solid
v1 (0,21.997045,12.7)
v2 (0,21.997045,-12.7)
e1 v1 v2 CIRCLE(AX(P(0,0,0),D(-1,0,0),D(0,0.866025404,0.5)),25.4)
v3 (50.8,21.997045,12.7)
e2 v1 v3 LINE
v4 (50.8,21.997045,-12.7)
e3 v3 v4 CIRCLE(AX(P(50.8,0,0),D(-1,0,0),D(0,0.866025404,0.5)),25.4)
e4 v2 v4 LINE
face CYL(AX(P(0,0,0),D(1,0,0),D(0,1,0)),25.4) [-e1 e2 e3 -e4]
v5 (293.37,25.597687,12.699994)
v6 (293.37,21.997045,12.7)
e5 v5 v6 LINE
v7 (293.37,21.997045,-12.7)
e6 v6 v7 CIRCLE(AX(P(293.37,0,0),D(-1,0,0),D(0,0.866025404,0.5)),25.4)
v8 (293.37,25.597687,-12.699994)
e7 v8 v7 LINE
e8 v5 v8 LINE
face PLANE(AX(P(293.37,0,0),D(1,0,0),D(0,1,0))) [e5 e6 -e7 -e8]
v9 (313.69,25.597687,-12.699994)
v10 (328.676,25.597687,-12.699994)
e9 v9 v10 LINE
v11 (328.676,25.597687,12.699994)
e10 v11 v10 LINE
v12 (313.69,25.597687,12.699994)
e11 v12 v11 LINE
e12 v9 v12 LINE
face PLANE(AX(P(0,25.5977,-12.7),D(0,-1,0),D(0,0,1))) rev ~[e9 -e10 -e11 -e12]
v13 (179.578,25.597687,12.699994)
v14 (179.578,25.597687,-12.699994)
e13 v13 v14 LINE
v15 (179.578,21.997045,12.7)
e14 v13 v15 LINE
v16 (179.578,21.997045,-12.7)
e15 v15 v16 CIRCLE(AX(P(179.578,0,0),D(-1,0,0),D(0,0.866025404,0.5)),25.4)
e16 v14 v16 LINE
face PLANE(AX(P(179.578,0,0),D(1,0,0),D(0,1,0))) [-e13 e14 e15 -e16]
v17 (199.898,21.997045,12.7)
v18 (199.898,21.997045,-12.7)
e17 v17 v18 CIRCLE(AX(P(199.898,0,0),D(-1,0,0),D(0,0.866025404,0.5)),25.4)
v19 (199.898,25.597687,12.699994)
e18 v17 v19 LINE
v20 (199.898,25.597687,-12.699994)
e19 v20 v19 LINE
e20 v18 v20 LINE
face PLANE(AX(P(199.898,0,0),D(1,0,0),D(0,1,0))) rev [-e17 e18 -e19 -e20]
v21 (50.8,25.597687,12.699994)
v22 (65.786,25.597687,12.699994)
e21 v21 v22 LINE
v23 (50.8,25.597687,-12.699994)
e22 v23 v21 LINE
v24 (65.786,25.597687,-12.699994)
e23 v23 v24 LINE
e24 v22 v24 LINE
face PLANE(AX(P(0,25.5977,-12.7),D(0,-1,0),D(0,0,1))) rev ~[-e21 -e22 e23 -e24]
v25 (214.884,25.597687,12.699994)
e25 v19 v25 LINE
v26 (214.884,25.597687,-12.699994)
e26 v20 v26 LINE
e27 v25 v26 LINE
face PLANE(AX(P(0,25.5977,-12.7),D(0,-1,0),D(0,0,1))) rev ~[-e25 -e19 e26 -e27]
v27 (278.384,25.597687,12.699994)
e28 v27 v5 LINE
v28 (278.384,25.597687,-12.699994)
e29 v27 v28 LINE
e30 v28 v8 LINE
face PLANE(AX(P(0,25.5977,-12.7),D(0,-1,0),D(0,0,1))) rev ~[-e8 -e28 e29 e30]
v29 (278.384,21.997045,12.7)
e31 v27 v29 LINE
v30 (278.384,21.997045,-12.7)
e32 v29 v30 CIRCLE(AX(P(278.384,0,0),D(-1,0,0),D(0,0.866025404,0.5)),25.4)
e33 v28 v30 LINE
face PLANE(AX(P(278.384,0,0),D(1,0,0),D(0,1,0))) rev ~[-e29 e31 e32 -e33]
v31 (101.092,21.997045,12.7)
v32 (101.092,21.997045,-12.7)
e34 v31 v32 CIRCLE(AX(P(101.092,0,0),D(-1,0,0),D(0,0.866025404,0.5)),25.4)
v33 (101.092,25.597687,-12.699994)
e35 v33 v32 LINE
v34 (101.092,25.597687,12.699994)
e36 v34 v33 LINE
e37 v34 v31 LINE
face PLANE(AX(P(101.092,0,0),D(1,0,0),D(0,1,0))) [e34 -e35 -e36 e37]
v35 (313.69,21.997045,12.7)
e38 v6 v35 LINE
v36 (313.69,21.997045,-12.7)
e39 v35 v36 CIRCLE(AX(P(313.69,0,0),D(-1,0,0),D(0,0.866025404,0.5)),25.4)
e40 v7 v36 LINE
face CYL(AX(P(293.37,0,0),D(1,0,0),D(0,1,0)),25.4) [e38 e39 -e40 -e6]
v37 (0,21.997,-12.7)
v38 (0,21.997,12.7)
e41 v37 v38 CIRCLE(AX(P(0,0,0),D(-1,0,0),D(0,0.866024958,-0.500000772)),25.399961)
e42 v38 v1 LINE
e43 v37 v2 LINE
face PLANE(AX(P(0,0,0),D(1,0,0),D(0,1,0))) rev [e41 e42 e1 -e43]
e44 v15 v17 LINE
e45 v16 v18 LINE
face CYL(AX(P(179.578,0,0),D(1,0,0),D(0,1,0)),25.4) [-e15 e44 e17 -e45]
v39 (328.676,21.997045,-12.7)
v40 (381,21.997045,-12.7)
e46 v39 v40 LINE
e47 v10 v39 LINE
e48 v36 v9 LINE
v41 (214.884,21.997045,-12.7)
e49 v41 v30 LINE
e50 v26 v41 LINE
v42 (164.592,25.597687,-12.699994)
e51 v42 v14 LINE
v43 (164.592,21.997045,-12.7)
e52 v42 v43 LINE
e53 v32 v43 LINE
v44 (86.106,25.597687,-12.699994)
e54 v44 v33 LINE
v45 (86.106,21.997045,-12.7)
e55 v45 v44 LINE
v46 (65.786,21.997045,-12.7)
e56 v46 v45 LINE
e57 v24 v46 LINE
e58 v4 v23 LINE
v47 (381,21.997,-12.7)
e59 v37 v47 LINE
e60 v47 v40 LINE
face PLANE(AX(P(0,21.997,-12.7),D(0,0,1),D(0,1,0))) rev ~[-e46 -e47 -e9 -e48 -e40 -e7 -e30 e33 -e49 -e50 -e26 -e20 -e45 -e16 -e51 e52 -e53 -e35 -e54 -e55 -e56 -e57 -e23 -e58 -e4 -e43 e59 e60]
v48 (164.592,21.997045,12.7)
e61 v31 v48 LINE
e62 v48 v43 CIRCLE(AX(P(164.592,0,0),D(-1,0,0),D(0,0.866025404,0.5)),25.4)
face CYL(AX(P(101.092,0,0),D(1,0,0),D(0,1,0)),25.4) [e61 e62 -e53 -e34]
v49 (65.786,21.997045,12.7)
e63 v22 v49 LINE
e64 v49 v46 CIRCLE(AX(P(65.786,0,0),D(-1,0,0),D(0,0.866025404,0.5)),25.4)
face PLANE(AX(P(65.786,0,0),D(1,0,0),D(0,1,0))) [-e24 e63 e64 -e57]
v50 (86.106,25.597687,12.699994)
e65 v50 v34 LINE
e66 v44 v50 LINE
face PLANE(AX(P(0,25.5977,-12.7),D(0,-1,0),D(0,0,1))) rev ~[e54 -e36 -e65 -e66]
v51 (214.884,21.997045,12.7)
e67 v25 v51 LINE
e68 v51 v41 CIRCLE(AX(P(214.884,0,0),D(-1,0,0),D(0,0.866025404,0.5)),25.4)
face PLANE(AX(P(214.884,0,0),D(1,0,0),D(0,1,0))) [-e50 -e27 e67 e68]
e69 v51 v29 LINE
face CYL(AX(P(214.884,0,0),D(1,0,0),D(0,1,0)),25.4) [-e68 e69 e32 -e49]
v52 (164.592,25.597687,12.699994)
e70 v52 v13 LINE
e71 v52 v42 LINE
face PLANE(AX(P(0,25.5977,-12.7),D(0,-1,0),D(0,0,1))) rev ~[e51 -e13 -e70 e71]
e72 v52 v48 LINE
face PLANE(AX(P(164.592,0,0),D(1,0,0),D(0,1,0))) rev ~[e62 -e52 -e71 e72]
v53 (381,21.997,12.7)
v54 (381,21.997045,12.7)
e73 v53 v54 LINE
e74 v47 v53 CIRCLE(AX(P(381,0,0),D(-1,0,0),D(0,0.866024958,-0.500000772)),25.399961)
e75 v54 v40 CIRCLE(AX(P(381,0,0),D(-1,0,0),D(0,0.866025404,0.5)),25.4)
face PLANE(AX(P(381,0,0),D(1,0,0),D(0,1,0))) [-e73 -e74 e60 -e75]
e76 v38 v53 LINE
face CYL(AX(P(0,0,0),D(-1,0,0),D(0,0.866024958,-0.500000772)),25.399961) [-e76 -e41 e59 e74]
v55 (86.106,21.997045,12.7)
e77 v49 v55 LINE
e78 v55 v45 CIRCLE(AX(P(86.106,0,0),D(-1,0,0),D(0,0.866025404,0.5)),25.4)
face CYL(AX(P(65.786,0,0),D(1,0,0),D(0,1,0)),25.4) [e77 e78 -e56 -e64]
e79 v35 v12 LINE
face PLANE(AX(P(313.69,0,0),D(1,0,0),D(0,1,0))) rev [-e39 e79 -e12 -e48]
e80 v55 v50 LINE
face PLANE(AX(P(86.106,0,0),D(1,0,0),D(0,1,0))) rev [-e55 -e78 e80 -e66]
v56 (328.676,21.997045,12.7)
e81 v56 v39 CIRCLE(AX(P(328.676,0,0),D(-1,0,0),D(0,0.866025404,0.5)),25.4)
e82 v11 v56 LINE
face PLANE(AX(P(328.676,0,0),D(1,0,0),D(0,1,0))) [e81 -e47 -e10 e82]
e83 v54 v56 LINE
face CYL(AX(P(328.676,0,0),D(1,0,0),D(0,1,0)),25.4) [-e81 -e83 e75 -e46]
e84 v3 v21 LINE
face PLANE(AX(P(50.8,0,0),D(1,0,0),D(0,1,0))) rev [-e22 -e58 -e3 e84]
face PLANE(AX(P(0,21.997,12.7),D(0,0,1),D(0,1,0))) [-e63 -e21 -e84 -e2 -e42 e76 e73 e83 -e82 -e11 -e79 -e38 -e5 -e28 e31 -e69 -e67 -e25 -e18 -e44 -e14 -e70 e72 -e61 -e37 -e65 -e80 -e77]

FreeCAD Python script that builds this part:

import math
import FreeCAD as App
import Part
import Sketcher
from FreeCAD import Vector
Q = App.Units.Quantity

doc = App.newDocument("Part")
params = doc.addObject("Spreadsheet::Sheet", "Params")
for row, (alias, value) in enumerate([
    ("sketch1_width", "15 in"),
    ("sketch1_width2", "2 in"),
    ("sketch1_height", "1 in"),
    ("sketch1_width3", "0.8 in"),
    ("sketch1_width4", "2.5 in"),
    ("revolution_angle", "360 deg"),
    ("sketch2_radius", "1 in"),
    ("sketch2_radius2", "1.125 in"),
    ("sketch2_height", "1 in"),
    ("pocket1_length", "15 in"),
], start=1):
    params.set(f"A{row}", alias)
    params.set(f"B{row}", "=" + value)
    params.setAlias(f"B{row}", alias)

body = doc.addObject("PartDesign::Body", "Body")

# Sketch on XY plane
sketch1 = body.newObject("Sketcher::SketchObject", "Sketch")
sketch1.AttachmentSupport = (doc.getObject("XY_Plane"), [""])
sketch1.MapMode = "FlatFace"
sketch1.addGeometry(Part.LineSegment(Vector(0, 25.4, 0), Vector(0, 0, 0)), False)
sketch1.addGeometry(Part.LineSegment(Vector(0, 0, 0), Vector(381, 0, 0)), False)
sketch1.addGeometry(Part.LineSegment(Vector(381, 0, 0), Vector(381, 25.4, 0)), False)
sketch1.addGeometry(Part.LineSegment(Vector(381, 25.4, 0), Vector(328.7, 25.4, 0)), False)
sketch1.addGeometry(Part.LineSegment(Vector(328.7, 25.4, 0), Vector(328.7, 28.6, 0)), False)
sketch1.addGeometry(Part.LineSegment(Vector(328.7, 28.6, 0), Vector(313.7, 28.6, 0)), False)
sketch1.addGeometry(Part.LineSegment(Vector(313.7, 28.6, 0), Vector(313.7, 25.4, 0)), False)
sketch1.addGeometry(Part.LineSegment(Vector(313.7, 25.4, 0), Vector(293.4, 25.4, 0)), False)
sketch1.addGeometry(Part.LineSegment(Vector(293.4, 25.4, 0), Vector(293.4, 28.6, 0)), False)
sketch1.addGeometry(Part.LineSegment(Vector(293.4, 28.6, 0), Vector(278.4, 28.6, 0)), False)
sketch1.addGeometry(Part.LineSegment(Vector(278.4, 28.6, 0), Vector(278.4, 25.4, 0)), False)
sketch1.addGeometry(Part.LineSegment(Vector(278.4, 25.4, 0), Vector(214.9, 25.4, 0)), False)
sketch1.addGeometry(Part.LineSegment(Vector(214.9, 25.4, 0), Vector(214.9, 28.6, 0)), False)
sketch1.addGeometry(Part.LineSegment(Vector(214.9, 28.6, 0), Vector(199.9, 28.6, 0)), False)
sketch1.addGeometry(Part.LineSegment(Vector(199.9, 28.6, 0), Vector(199.9, 25.4, 0)), False)
sketch1.addGeometry(Part.LineSegment(Vector(199.9, 25.4, 0), Vector(179.6, 25.4, 0)), False)
sketch1.addGeometry(Part.LineSegment(Vector(179.6, 25.4, 0), Vector(179.6, 28.6, 0)), False)
sketch1.addGeometry(Part.LineSegment(Vector(179.6, 28.6, 0), Vector(164.6, 28.6, 0)), False)
sketch1.addGeometry(Part.LineSegment(Vector(164.6, 28.6, 0), Vector(164.6, 25.4, 0)), False)
sketch1.addGeometry(Part.LineSegment(Vector(164.6, 25.4, 0), Vector(101.1, 25.4, 0)), False)
sketch1.addGeometry(Part.LineSegment(Vector(101.1, 25.4, 0), Vector(101.1, 28.6, 0)), False)
sketch1.addGeometry(Part.LineSegment(Vector(101.1, 28.6, 0), Vector(86.1, 28.6, 0)), False)
sketch1.addGeometry(Part.LineSegment(Vector(86.1, 28.6, 0), Vector(86.1, 25.4, 0)), False)
sketch1.addGeometry(Part.LineSegment(Vector(86.1, 25.4, 0), Vector(65.8, 25.4, 0)), False)
sketch1.addGeometry(Part.LineSegment(Vector(65.8, 25.4, 0), Vector(65.8, 28.6, 0)), False)
sketch1.addGeometry(Part.LineSegment(Vector(65.8, 28.6, 0), Vector(50.8, 28.6, 0)), False)
sketch1.addGeometry(Part.LineSegment(Vector(50.8, 28.6, 0), Vector(50.8, 25.4, 0)), False)
sketch1.addGeometry(Part.LineSegment(Vector(50.8, 25.4, 0), Vector(0, 25.4, 0)), False)
sketch1.addConstraint(Sketcher.Constraint("Coincident", 0, 2, 1, 1))
sketch1.addConstraint(Sketcher.Constraint("Coincident", 1, 2, 2, 1))
sketch1.addConstraint(Sketcher.Constraint("Coincident", 2, 2, 3, 1))
sketch1.addConstraint(Sketcher.Constraint("Coincident", 3, 2, 4, 1))
sketch1.addConstraint(Sketcher.Constraint("Coincident", 4, 2, 5, 1))
sketch1.addConstraint(Sketcher.Constraint("Coincident", 5, 2, 6, 1))
sketch1.addConstraint(Sketcher.Constraint("Coincident", 6, 2, 7, 1))
sketch1.addConstraint(Sketcher.Constraint("Coincident", 7, 2, 8, 1))
sketch1.addConstraint(Sketcher.Constraint("Coincident", 8, 2, 9, 1))
sketch1.addConstraint(Sketcher.Constraint("Coincident", 9, 2, 10, 1))
sketch1.addConstraint(Sketcher.Constraint("Coincident", 10, 2, 11, 1))
sketch1.addConstraint(Sketcher.Constraint("Coincident", 11, 2, 12, 1))
sketch1.addConstraint(Sketcher.Constraint("Coincident", 12, 2, 13, 1))
sketch1.addConstraint(Sketcher.Constraint("Coincident", 13, 2, 14, 1))
sketch1.addConstraint(Sketcher.Constraint("Coincident", 14, 2, 15, 1))
sketch1.addConstraint(Sketcher.Constraint("Coincident", 15, 2, 16, 1))
sketch1.addConstraint(Sketcher.Constraint("Coincident", 16, 2, 17, 1))
sketch1.addConstraint(Sketcher.Constraint("Coincident", 17, 2, 18, 1))
sketch1.addConstraint(Sketcher.Constraint("Coincident", 18, 2, 19, 1))
sketch1.addConstraint(Sketcher.Constraint("Coincident", 19, 2, 20, 1))
sketch1.addConstraint(Sketcher.Constraint("Coincident", 20, 2, 21, 1))
sketch1.addConstraint(Sketcher.Constraint("Coincident", 21, 2, 22, 1))
sketch1.addConstraint(Sketcher.Constraint("Coincident", 22, 2, 23, 1))
sketch1.addConstraint(Sketcher.Constraint("Coincident", 23, 2, 24, 1))
sketch1.addConstraint(Sketcher.Constraint("Coincident", 24, 2, 25, 1))
sketch1.addConstraint(Sketcher.Constraint("Coincident", 25, 2, 26, 1))
sketch1.addConstraint(Sketcher.Constraint("Coincident", 26, 2, 27, 1))
sketch1.addConstraint(Sketcher.Constraint("Coincident", 27, 2, 0, 1))
sketch1.addConstraint(Sketcher.Constraint("Vertical", 0))
sketch1.addConstraint(Sketcher.Constraint("Horizontal", 1))
sketch1.addConstraint(Sketcher.Constraint("Vertical", 2))
sketch1.addConstraint(Sketcher.Constraint("Horizontal", 3))
sketch1.addConstraint(Sketcher.Constraint("Vertical", 4))
sketch1.addConstraint(Sketcher.Constraint("Horizontal", 5))
sketch1.addConstraint(Sketcher.Constraint("Vertical", 6))
sketch1.addConstraint(Sketcher.Constraint("Horizontal", 7))
sketch1.addConstraint(Sketcher.Constraint("Vertical", 8))
sketch1.addConstraint(Sketcher.Constraint("Horizontal", 9))
sketch1.addConstraint(Sketcher.Constraint("Vertical", 10))
sketch1.addConstraint(Sketcher.Constraint("Horizontal", 11))
sketch1.addConstraint(Sketcher.Constraint("Vertical", 12))
sketch1.addConstraint(Sketcher.Constraint("Horizontal", 13))
sketch1.addConstraint(Sketcher.Constraint("Vertical", 14))
sketch1.addConstraint(Sketcher.Constraint("Horizontal", 15))
sketch1.addConstraint(Sketcher.Constraint("Vertical", 16))
sketch1.addConstraint(Sketcher.Constraint("Horizontal", 17))
sketch1.addConstraint(Sketcher.Constraint("Vertical", 18))
sketch1.addConstraint(Sketcher.Constraint("Horizontal", 19))
sketch1.addConstraint(Sketcher.Constraint("Vertical", 20))
sketch1.addConstraint(Sketcher.Constraint("Horizontal", 21))
sketch1.addConstraint(Sketcher.Constraint("Vertical", 22))
sketch1.addConstraint(Sketcher.Constraint("Horizontal", 23))
sketch1.addConstraint(Sketcher.Constraint("Vertical", 24))
sketch1.addConstraint(Sketcher.Constraint("Horizontal", 25))
sketch1.addConstraint(Sketcher.Constraint("Vertical", 26))
sketch1.addConstraint(Sketcher.Constraint("Horizontal", 27))
sketch1.addConstraint(Sketcher.Constraint("Coincident", 0, 2, -1, 1))
sketch1.addConstraint(Sketcher.Constraint("Horizontal", 3, 2, 6, 2))
sketch1.addConstraint(Sketcher.Constraint("Horizontal", 5, 2, 8, 2))
sketch1.addConstraint(Sketcher.Constraint("Horizontal", 7, 2, 10, 2))
sketch1.addConstraint(Sketcher.Constraint("Horizontal", 9, 2, 12, 2))
sketch1.addConstraint(Sketcher.Constraint("Horizontal", 11, 2, 14, 2))
sketch1.addConstraint(Sketcher.Constraint("Horizontal", 13, 2, 16, 2))
sketch1.addConstraint(Sketcher.Constraint("Horizontal", 15, 2, 18, 2))
sketch1.addConstraint(Sketcher.Constraint("Horizontal", 17, 2, 20, 2))
sketch1.addConstraint(Sketcher.Constraint("Horizontal", 19, 2, 22, 2))
sketch1.addConstraint(Sketcher.Constraint("Horizontal", 21, 2, 24, 2))
sketch1.addConstraint(Sketcher.Constraint("Horizontal", 23, 2, 26, 2))
sketch1.addConstraint(Sketcher.Constraint("Equal", 5, 9))
sketch1.addConstraint(Sketcher.Constraint("Equal", 9, 13))
sketch1.addConstraint(Sketcher.Constraint("Equal", 7, 15))
sketch1.addConstraint(Sketcher.Constraint("Equal", 13, 17))
sketch1.addConstraint(Sketcher.Constraint("Equal", 11, 19))
sketch1.addConstraint(Sketcher.Constraint("Equal", 17, 21))
sketch1.addConstraint(Sketcher.Constraint("Equal", 15, 23))
sketch1.addConstraint(Sketcher.Constraint("Equal", 21, 25))
sketch1.addConstraint(Sketcher.Constraint("DistanceX", 1, 1, 1, 2, Q("15 in")))
sketch1.addConstraint(Sketcher.Constraint("DistanceX", 27, 2, 27, 1, Q("2 in")))
sketch1.addConstraint(Sketcher.Constraint("DistanceY", 0, 2, 0, 1, Q("1 in")))
sketch1.addConstraint(Sketcher.Constraint("DistanceX", 7, 2, 7, 1, Q("0.8 in")))
sketch1.addConstraint(Sketcher.Constraint("DistanceX", 11, 2, 11, 1, Q("2.5 in")))
sketch1.addConstraint(Sketcher.Constraint("DistanceX", 5, 2, 5, 1, Q("0.59 in")))
sketch1.addConstraint(Sketcher.Constraint("DistanceY", 4, 1, 4, 2, Q("0.125 in")))
sketch1.setExpression("Constraints[76]", "Params.sketch1_width")
sketch1.setExpression("Constraints[77]", "Params.sketch1_width2")
sketch1.setExpression("Constraints[78]", "Params.sketch1_height")
sketch1.setExpression("Constraints[79]", "Params.sketch1_width3")
sketch1.setExpression("Constraints[80]", "Params.sketch1_width4")
revolution = body.newObject("PartDesign::Revolution", "Revolution")
revolution.Profile = sketch1
revolution.ReferenceAxis = (sketch1, ["H_Axis"])
revolution.setExpression("Angle", "Params.revolution_angle")

# Sketch on YZ plane
sketch2 = body.newObject("Sketcher::SketchObject", "Sketch001")
sketch2.AttachmentSupport = (doc.getObject("YZ_Plane"), [""])
sketch2.MapMode = "FlatFace"
sketch2.addGeometry(Part.ArcOfCircle(Part.Circle(Vector(0, 0, 0), Vector(0, 0, 1), 28.6), math.radians(26), math.radians(334)), False)
sketch2.addGeometry(Part.LineSegment(Vector(25.6, 12.7, 0), Vector(22, 12.7, 0)), False)
sketch2.addGeometry(Part.ArcOfCircle(Part.Circle(Vector(0, 0, 0), Vector(0, 0, 1), 25.4), math.radians(30), math.radians(330)), False)
sketch2.addGeometry(Part.LineSegment(Vector(22, -12.7, 0), Vector(25.6, -12.7, 0)), False)
sketch2.addGeometry(Part.LineSegment(Vector(25.6, -12.7, 0), Vector(25.6, 12.7, 0)), False)
sketch2.addGeometry(Part.ArcOfCircle(Part.Circle(Vector(0, 0, 0), Vector(0, 0, 1), 28.6), math.radians(-26), math.radians(26)), False)
sketch2.addConstraint(Sketcher.Constraint("Coincident", 0, 1, 1, 1))
sketch2.addConstraint(Sketcher.Constraint("Coincident", 1, 2, 2, 1))
sketch2.addConstraint(Sketcher.Constraint("Coincident", 2, 2, 3, 1))
sketch2.addConstraint(Sketcher.Constraint("Coincident", 3, 2, 0, 2))
sketch2.addConstraint(Sketcher.Constraint("Coincident", 4, 1, 5, 1))
sketch2.addConstraint(Sketcher.Constraint("Coincident", 5, 2, 4, 2))
sketch2.addConstraint(Sketcher.Constraint("Horizontal", 1))
sketch2.addConstraint(Sketcher.Constraint("Horizontal", 3))
sketch2.addConstraint(Sketcher.Constraint("Vertical", 4))
sketch2.addConstraint(Sketcher.Constraint("Coincident", 0, 3, -1, 1))
sketch2.addConstraint(Sketcher.Constraint("Coincident", 2, 3, -1, 1))
sketch2.addConstraint(Sketcher.Constraint("Coincident", 5, 3, -1, 1))
sketch2.addConstraint(Sketcher.Constraint("Coincident", 4, 1, 3, 2))
sketch2.addConstraint(Sketcher.Constraint("Horizontal", 1, 2, 5, 2))
sketch2.addConstraint(Sketcher.Constraint("Radius", 2, Q("1 in")))
sketch2.addConstraint(Sketcher.Constraint("Radius", 0, Q("1.125 in")))
sketch2.addConstraint(Sketcher.Constraint("DistanceY", 4, 1, 4, 2, Q("1 in")))
sketch2.setExpression("Constraints[14]", "Params.sketch2_radius")
sketch2.setExpression("Constraints[15]", "Params.sketch2_radius2")
sketch2.setExpression("Constraints[16]", "Params.sketch2_height")
pocket1 = body.newObject("PartDesign::Pocket", "Pocket")
pocket1.Profile = sketch2
pocket1.setExpression("Length", "Params.pocket1_length")
pocket1.Reversed = True

doc.recompute()
